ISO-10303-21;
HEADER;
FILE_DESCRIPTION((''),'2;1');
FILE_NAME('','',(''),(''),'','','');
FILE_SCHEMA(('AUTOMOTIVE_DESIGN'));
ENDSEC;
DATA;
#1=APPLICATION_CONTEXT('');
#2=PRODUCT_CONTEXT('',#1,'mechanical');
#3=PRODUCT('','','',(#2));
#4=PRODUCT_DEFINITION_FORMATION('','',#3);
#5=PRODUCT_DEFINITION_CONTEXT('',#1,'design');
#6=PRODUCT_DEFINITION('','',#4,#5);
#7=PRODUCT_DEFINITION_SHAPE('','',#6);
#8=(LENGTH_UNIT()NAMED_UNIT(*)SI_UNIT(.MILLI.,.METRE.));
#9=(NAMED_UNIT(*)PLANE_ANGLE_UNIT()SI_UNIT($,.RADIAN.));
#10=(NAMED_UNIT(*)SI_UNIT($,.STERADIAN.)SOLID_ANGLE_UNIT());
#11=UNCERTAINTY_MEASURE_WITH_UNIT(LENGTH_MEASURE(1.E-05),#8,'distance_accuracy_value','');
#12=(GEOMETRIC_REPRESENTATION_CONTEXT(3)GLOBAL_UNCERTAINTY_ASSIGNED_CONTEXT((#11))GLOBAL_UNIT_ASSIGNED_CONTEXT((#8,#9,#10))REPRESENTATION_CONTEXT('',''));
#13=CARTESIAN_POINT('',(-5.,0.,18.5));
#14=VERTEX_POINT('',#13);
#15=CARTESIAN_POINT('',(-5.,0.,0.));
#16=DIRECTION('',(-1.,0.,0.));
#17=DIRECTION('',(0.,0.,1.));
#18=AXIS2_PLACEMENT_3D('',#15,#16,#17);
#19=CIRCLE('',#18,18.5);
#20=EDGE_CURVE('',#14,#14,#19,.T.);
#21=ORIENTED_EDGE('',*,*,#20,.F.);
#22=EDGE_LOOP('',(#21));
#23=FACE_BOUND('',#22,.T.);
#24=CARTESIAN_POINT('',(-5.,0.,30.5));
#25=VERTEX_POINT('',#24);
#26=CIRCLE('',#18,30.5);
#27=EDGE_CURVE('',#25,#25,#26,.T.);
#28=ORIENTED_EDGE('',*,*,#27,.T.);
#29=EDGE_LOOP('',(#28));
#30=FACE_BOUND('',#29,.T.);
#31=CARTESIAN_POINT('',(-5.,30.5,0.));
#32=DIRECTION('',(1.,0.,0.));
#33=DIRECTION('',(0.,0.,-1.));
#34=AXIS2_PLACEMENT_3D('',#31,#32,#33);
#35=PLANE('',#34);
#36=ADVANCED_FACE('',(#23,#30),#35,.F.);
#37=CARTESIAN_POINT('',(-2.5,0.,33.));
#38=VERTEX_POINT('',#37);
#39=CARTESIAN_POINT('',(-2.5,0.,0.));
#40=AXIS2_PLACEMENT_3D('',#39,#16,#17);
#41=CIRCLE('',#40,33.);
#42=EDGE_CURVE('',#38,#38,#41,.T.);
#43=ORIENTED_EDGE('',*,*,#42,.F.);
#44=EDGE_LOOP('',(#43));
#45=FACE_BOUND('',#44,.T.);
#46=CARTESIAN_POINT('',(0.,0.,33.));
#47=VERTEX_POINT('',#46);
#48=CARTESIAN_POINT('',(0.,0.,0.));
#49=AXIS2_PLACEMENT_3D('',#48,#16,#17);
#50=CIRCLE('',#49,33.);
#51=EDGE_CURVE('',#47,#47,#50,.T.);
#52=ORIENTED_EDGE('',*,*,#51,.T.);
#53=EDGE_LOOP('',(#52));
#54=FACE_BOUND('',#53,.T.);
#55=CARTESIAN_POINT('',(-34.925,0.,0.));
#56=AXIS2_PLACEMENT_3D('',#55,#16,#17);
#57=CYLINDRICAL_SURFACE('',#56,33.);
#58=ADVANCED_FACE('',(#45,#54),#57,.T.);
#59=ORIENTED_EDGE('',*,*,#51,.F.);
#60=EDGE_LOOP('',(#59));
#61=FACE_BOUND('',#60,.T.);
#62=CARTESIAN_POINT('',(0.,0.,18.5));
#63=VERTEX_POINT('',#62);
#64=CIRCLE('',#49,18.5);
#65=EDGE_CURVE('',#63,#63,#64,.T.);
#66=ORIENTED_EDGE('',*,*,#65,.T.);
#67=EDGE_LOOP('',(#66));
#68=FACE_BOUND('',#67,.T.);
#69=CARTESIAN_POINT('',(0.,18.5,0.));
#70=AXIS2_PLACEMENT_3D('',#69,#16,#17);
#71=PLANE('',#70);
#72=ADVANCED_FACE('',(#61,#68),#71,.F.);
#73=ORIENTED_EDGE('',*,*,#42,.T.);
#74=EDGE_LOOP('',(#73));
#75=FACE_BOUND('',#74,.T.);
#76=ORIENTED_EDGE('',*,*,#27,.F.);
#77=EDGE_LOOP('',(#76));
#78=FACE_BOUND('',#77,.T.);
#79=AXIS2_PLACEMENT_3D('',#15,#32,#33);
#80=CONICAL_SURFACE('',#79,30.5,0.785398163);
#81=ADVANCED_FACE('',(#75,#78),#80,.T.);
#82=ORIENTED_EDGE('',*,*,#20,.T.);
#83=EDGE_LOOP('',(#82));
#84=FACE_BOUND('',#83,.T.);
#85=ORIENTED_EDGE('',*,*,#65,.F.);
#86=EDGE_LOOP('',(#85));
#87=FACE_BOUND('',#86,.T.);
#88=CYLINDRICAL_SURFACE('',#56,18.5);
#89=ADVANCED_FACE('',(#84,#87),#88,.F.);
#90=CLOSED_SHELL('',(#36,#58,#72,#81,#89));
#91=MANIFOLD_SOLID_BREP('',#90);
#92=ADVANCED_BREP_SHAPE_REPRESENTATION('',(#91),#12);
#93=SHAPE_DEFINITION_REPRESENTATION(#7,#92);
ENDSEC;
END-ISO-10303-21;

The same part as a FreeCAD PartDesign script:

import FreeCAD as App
import Part
import Sketcher

V = App.Vector
Q = App.Units.Quantity

doc = App.newDocument("Part")
body = doc.addObject("PartDesign::Body", "Body")

# Sketch on XY plane
sketch1 = doc.addObject("Sketcher::SketchObject", "Sketch")
body.addObject(sketch1)
sketch1.AttachmentSupport = (doc.XY_Plane, [""])
sketch1.MapMode = "FlatFace"
sketch1.addGeometry(Part.LineSegment(V(0, 18.5, 0), V(0, 33, 0)), False)
sketch1.addGeometry(Part.LineSegment(V(0, 33, 0), V(-2.5, 33, 0)), False)
sketch1.addGeometry(Part.LineSegment(V(-2.5, 33, 0), V(-5, 30.5, 0)), False)
sketch1.addGeometry(Part.LineSegment(V(-5, 30.5, 0), V(-5, 18.5, 0)), False)
sketch1.addGeometry(Part.LineSegment(V(-5, 18.5, 0), V(0, 18.5, 0)), False)
sketch1.addConstraint(Sketcher.Constraint("Coincident", 0, 2, 1, 1))
sketch1.addConstraint(Sketcher.Constraint("Coincident", 1, 2, 2, 1))
sketch1.addConstraint(Sketcher.Constraint("Coincident", 2, 2, 3, 1))
sketch1.addConstraint(Sketcher.Constraint("Coincident", 3, 2, 4, 1))
sketch1.addConstraint(Sketcher.Constraint("Coincident", 4, 2, 0, 1))
sketch1.addConstraint(Sketcher.Constraint("Vertical", 0))
sketch1.addConstraint(Sketcher.Constraint("Horizontal", 1))
sketch1.addConstraint(Sketcher.Constraint("Vertical", 3))
sketch1.addConstraint(Sketcher.Constraint("Horizontal", 4))
sketch1.addConstraint(Sketcher.Constraint("PointOnObject", 0, 2, -2))
sketch1.addConstraint(Sketcher.Constraint("DistanceX", 4, 1, 4, 2, 5.0))
sketch1.addConstraint(Sketcher.Constraint("DistanceY", 3, 2, 3, 1, 12.0))
sketch1.addConstraint(Sketcher.Constraint("Angle", 2, Q("-135 deg")))
sketch1.addConstraint(Sketcher.Constraint("DistanceX", 1, 2, 1, 1, 2.5))
sketch1.addConstraint(Sketcher.Constraint("DistanceY", -1, 1, 0, 2, 33.0))
revolution = doc.addObject("PartDesign::Revolution", "Revolution")
body.addObject(revolution)
revolution.Profile = sketch1
revolution.ReferenceAxis = (sketch1, ["H_Axis"])
revolution.Angle = 360

doc.recompute()
